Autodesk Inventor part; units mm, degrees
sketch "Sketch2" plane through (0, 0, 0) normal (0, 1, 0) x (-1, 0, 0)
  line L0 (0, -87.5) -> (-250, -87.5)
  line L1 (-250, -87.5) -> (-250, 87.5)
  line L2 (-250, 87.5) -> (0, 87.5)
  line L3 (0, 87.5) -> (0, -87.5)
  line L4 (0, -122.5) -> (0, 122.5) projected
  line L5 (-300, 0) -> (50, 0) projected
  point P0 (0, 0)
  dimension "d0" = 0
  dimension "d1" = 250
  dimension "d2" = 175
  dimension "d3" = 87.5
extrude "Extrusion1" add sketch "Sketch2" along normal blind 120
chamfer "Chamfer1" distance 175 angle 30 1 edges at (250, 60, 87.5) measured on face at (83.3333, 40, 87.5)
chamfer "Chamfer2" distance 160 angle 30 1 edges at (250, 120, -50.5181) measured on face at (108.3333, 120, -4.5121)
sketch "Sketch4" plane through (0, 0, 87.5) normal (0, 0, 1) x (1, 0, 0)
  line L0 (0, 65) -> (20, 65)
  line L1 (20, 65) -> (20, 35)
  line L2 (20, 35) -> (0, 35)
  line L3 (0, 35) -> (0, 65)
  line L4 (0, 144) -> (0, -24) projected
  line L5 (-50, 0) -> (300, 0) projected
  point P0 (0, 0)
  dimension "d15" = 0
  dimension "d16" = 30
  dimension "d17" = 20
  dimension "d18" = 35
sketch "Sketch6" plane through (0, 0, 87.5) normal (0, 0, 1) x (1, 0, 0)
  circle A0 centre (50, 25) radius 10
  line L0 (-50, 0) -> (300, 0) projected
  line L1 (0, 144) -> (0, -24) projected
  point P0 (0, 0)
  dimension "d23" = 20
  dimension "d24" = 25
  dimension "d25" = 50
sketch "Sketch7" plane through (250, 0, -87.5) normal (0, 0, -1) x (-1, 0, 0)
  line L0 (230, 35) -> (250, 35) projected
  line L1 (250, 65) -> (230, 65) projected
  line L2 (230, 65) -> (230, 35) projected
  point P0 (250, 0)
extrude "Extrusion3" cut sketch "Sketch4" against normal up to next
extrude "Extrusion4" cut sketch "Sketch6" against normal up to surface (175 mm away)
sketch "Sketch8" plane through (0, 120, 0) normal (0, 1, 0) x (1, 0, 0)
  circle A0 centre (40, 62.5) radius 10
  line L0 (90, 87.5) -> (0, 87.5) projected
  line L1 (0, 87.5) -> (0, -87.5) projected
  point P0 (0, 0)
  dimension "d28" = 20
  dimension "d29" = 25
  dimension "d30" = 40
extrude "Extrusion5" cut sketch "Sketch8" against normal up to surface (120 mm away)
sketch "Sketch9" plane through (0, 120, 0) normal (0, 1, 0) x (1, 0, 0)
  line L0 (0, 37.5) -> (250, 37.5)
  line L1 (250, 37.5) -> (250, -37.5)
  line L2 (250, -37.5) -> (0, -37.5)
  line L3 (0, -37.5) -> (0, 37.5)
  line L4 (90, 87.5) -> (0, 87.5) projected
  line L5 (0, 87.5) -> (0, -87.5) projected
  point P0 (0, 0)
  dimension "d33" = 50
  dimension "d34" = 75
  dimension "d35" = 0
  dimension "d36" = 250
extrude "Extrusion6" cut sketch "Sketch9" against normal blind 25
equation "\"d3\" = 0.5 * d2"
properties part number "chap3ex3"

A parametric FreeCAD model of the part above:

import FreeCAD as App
import Part
import Sketcher


def edges_at(feature, points):
    """Names of the edges that pass closest to the given points."""
    edges = feature.Shape.Edges
    near = lambda p: min(range(len(edges)), key=lambda i: edges[i].distToShape(Part.Vertex(*p))[0])
    return sorted({f"Edge{near(p) + 1}" for p in points})


def add_polygon(sketch, points):
    """Adds a closed chain of lines whose ends are joined by coincident constraints."""
    first, n = sketch.GeometryCount, len(points)
    for a, b in zip(points, points[1:] + points[:1]):
        sketch.addGeometry(Part.LineSegment(App.Vector(*a, 0), App.Vector(*b, 0)), False)
    for i in range(n):
        sketch.addConstraint(Sketcher.Constraint("Coincident", first + i, 2, first + (i + 1) % n, 1))

doc = App.newDocument("Part")
body = doc.addObject("PartDesign::Body", "Body")

# Sketch on XZ plane
sketch1 = doc.addObject("Sketcher::SketchObject", "Sketch")
body.addObject(sketch1)
sketch1.AttachmentSupport = (doc.XZ_Plane, [""])
sketch1.MapMode = "FlatFace"
add_polygon(sketch1, [(250, -88), (0, -88), (0, 88), (250, 88)])  # lines 0-3
sketch1.addConstraint([
    Sketcher.Constraint("Horizontal", 0),
    Sketcher.Constraint("Vertical", 1),
    Sketcher.Constraint("Horizontal", 2),
    Sketcher.Constraint("Vertical", 3),
    Sketcher.Constraint("Symmetric", 0, 2, 1, 2, -1, 1),
    Sketcher.Constraint("DistanceX", 0, 2, 0, 1, 250.0),
    Sketcher.Constraint("DistanceY", 1, 1, 1, 2, 175.0),
])
pad1 = doc.addObject("PartDesign::Pad", "Pad")
body.addObject(pad1)
pad1.Profile = sketch1
pad1.Length = 120
pad1.Reversed = True
doc.recompute()

chamfer = doc.addObject("PartDesign::Chamfer", "Chamfer")
body.addObject(chamfer)
chamfer.Base = (pad1, edges_at(pad1, [(250, 60, 87.5)]))
chamfer.ChamferType = "Distance and Angle"
chamfer.Size = 175
chamfer.Angle = 30
doc.recompute()

chamfer2 = doc.addObject("PartDesign::Chamfer", "Chamfer001")
body.addObject(chamfer2)
chamfer2.Base = (chamfer, edges_at(chamfer, [(250, 120, -50.518)]))
chamfer2.ChamferType = "Distance and Angle"
chamfer2.Size = 160
chamfer2.Angle = 30

# Sketch on XY plane
sketch2 = doc.addObject("Sketcher::SketchObject", "Sketch001")
body.addObject(sketch2)
sketch2.AttachmentSupport = (doc.XY_Plane, [""])
sketch2.MapMode = "FlatFace"
sketch2.AttachmentOffset = App.Placement(App.Vector(0, 0, 87.5), App.Rotation())
add_polygon(sketch2, [(20, 65), (0, 65), (0, 35), (20, 35)])  # lines 0-3
sketch2.addConstraint([
    Sketcher.Constraint("Horizontal", 0),
    Sketcher.Constraint("Vertical", 1),
    Sketcher.Constraint("Horizontal", 2),
    Sketcher.Constraint("Vertical", 3),
    Sketcher.Constraint("PointOnObject", 0, 2, -2),
    Sketcher.Constraint("DistanceX", 0, 2, 0, 1, 20.0),
    Sketcher.Constraint("DistanceY", 1, 2, 1, 1, 30.0),
    Sketcher.Constraint("DistanceY", -1, 1, 1, 2, 35.0),
])
pocket1 = doc.addObject("PartDesign::Pocket", "Pocket")
body.addObject(pocket1)
pocket1.Profile = sketch2
pocket1.Type = "UpToFirst"

# Sketch on XY plane
sketch3 = doc.addObject("Sketcher::SketchObject", "Sketch002")
body.addObject(sketch3)
sketch3.AttachmentSupport = (doc.XY_Plane, [""])
sketch3.MapMode = "FlatFace"
sketch3.AttachmentOffset = App.Placement(App.Vector(0, 0, 87.5), App.Rotation())
sketch3.addGeometry(Part.Circle(App.Vector(50, 25, 0), App.Vector(0, 0, 1), 10), False)
sketch3.addConstraint([
    Sketcher.Constraint("Diameter", 0, 20.0),
    Sketcher.Constraint("DistanceX", -1, 1, 0, 3, 50.0),
    Sketcher.Constraint("DistanceY", -1, 1, 0, 3, 25.0),
])
pocket2 = doc.addObject("PartDesign::Pocket", "Pocket001")
body.addObject(pocket2)
pocket2.Profile = sketch3
pocket2.Length = 175

# Sketch on XZ plane
sketch4 = doc.addObject("Sketcher::SketchObject", "Sketch003")
body.addObject(sketch4)
sketch4.AttachmentSupport = (doc.XZ_Plane, [""])
sketch4.MapMode = "FlatFace"
sketch4.AttachmentOffset = App.Placement(App.Vector(0, 0, -120), App.Rotation())
sketch4.addGeometry(Part.Circle(App.Vector(40, -62, 0), App.Vector(0, 0, 1), 10), False)
sketch4.addConstraint([
    Sketcher.Constraint("Diameter", 0, 20.0),
    Sketcher.Constraint("DistanceX", -1, 1, 0, 3, 40.0),
    Sketcher.Constraint("DistanceY", 0, 3, -1, 1, 62.5),
])
pocket3 = doc.addObject("PartDesign::Pocket", "Pocket002")
body.addObject(pocket3)
pocket3.Profile = sketch4
pocket3.Length = 120
pocket3.Reversed = True

# Sketch on XZ plane
sketch5 = doc.addObject("Sketcher::SketchObject", "Sketch004")
body.addObject(sketch5)
sketch5.AttachmentSupport = (doc.XZ_Plane, [""])
sketch5.MapMode = "FlatFace"
sketch5.AttachmentOffset = App.Placement(App.Vector(0, 0, -120), App.Rotation())
add_polygon(sketch5, [(250, -38), (0, -38), (0, 38), (250, 38)])  # lines 0-3
sketch5.addConstraint([
    Sketcher.Constraint("Horizontal", 0),
    Sketcher.Constraint("Vertical", 1),
    Sketcher.Constraint("Horizontal", 2),
    Sketcher.Constraint("Vertical", 3),
    Sketcher.Constraint("Symmetric", 0, 2, 1, 2, -1, 1),
    Sketcher.Constraint("DistanceX", 0, 2, 0, 1, 250.0),
    Sketcher.Constraint("DistanceY", 1, 1, 1, 2, 75.0),
])
pocket4 = doc.addObject("PartDesign::Pocket", "Pocket003")
body.addObject(pocket4)
pocket4.Profile = sketch5
pocket4.Length = 25
pocket4.Reversed = True

doc.recompute()
